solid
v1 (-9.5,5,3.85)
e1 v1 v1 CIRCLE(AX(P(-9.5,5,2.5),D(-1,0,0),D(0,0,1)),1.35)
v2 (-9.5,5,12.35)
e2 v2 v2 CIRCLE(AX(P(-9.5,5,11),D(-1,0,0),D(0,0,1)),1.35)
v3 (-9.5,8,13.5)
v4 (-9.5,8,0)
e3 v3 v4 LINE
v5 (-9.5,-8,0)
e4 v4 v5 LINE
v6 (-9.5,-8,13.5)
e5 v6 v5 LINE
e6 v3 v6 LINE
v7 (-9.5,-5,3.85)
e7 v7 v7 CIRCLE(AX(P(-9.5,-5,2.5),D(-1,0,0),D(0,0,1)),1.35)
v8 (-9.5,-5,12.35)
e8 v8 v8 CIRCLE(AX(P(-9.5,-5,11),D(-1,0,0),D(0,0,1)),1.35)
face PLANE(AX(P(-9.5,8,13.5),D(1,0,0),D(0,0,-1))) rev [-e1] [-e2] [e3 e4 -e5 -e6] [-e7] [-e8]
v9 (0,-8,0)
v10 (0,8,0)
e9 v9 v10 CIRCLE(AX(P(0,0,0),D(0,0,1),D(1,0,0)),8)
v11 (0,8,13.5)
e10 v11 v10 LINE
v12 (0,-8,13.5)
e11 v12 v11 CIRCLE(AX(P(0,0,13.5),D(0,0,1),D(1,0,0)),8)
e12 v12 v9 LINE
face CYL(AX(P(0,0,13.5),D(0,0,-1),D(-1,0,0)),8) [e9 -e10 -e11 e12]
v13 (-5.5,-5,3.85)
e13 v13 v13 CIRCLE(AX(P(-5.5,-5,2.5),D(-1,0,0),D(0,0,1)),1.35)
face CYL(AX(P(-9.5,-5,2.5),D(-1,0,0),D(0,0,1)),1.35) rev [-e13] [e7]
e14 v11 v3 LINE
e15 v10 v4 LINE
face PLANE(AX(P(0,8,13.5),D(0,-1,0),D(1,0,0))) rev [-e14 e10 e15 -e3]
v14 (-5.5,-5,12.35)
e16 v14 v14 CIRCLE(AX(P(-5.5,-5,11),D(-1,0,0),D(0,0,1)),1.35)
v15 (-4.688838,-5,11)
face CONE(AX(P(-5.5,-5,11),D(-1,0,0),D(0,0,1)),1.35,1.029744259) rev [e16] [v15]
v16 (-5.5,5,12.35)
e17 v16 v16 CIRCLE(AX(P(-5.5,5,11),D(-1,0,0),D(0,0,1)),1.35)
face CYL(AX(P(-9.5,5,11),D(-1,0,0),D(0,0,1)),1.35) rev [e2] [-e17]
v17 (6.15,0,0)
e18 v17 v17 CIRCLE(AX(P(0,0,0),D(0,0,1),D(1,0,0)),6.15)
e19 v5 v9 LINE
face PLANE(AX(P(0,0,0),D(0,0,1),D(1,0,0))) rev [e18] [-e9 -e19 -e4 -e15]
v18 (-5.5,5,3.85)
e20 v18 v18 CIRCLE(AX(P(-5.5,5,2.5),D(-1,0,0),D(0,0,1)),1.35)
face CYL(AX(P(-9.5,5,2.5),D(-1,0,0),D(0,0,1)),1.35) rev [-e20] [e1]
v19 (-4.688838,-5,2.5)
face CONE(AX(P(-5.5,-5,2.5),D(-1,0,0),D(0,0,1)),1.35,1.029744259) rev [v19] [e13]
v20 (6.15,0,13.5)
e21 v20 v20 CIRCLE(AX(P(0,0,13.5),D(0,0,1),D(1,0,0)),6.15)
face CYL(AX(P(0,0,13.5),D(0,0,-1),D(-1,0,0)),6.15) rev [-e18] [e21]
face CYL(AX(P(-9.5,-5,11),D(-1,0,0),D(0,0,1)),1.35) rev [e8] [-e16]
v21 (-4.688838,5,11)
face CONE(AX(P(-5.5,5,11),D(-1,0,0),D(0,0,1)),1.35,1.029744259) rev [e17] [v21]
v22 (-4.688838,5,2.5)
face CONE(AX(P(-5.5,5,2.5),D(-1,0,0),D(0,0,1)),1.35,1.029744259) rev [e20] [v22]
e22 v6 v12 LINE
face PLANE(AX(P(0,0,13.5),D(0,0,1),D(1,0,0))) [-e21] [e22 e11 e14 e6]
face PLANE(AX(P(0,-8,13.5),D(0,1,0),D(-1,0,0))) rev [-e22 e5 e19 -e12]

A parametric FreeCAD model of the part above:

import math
import FreeCAD as App
import Part
import Sketcher
from FreeCAD import Vector

doc = App.newDocument("Part")
body = doc.addObject("PartDesign::Body", "Body")

# Sketch on XY plane
sketch1 = body.newObject("Sketcher::SketchObject", "Sketch")
sketch1.AttachmentSupport = (doc.getObject("XY_Plane"), [""])
sketch1.MapMode = "FlatFace"
sketch1.addGeometry(Part.LineSegment(Vector(-9.5, 8, 0), Vector(-9.5, -8, 0)), False)
sketch1.addGeometry(Part.LineSegment(Vector(-9.5, -8, 0), Vector(0, -8, 0)), False)
sketch1.addGeometry(Part.ArcOfCircle(Part.Circle(Vector(0, 0, 0), Vector(0, 0, 1), 8), math.radians(-90), math.radians(90)), False)
sketch1.addGeometry(Part.LineSegment(Vector(0, 8, 0), Vector(-9.5, 8, 0)), False)
sketch1.addGeometry(Part.Circle(Vector(0, 0, 0), Vector(0, 0, 1), 6.15), False)
sketch1.addConstraint(Sketcher.Constraint("Coincident", 0, 2, 1, 1))
sketch1.addConstraint(Sketcher.Constraint("Tangent", 1, 2, 2, 1))
sketch1.addConstraint(Sketcher.Constraint("Tangent", 2, 2, 3, 1))
sketch1.addConstraint(Sketcher.Constraint("Coincident", 3, 2, 0, 1))
sketch1.addConstraint(Sketcher.Constraint("Vertical", 0))
sketch1.addConstraint(Sketcher.Constraint("Horizontal", 1))
sketch1.addConstraint(Sketcher.Constraint("Horizontal", 3))
sketch1.addConstraint(Sketcher.Constraint("Coincident", 2, 3, -1, 1))
sketch1.addConstraint(Sketcher.Constraint("Coincident", 4, 3, -1, 1))
sketch1.addConstraint(Sketcher.Constraint("Radius", 2, 8.0))
sketch1.addConstraint(Sketcher.Constraint("Diameter", 4, 12.3))
sketch1.addConstraint(Sketcher.Constraint("DistanceX", 1, 1, 1, 2, 9.5))
pad1 = body.newObject("PartDesign::Pad", "Pad")
pad1.Profile = sketch1
pad1.Length = 13.5

# Sketch on YZ plane
sketch2 = body.newObject("Sketcher::SketchObject", "Sketch001")
sketch2.AttachmentSupport = (doc.getObject("YZ_Plane"), [""])
sketch2.MapMode = "FlatFace"
sketch2.AttachmentOffset = App.Placement(Vector(0, 0, -9.5), App.Rotation())
sketch2.addGeometry(Part.Circle(Vector(-5, 2.5, 0), Vector(0, 0, 1), 1.35), False)
sketch2.addGeometry(Part.Circle(Vector(5, 2.5, 0), Vector(0, 0, 1), 1.35), False)
sketch2.addGeometry(Part.Circle(Vector(5, 11, 0), Vector(0, 0, 1), 1.35), False)
sketch2.addGeometry(Part.Circle(Vector(-5, 11, 0), Vector(0, 0, 1), 1.35), False)
sketch2.addConstraint(Sketcher.Constraint("Equal", 0, 1))
sketch2.addConstraint(Sketcher.Constraint("Equal", 1, 2))
sketch2.addConstraint(Sketcher.Constraint("Equal", 2, 3))
sketch2.addConstraint(Sketcher.Constraint("Symmetric", 0, 3, 1, 3, -2))
sketch2.addConstraint(Sketcher.Constraint("Symmetric", 2, 3, 3, 3, -2))
sketch2.addConstraint(Sketcher.Constraint("Vertical", 1, 3, 2, 3))
sketch2.addConstraint(Sketcher.Constraint("Diameter", 0, 2.7))
sketch2.addConstraint(Sketcher.Constraint("DistanceX", 0, 3, -1, 1, 5.0))
sketch2.addConstraint(Sketcher.Constraint("DistanceY", -1, 1, 2, 3, 11.0))
sketch2.addConstraint(Sketcher.Constraint("DistanceY", -1, 1, 0, 3, 2.5))
doc.recompute()
hole = body.newObject("PartDesign::Hole", "Hole")
hole.Profile = sketch2
hole.ThreadType = "None"
hole.Diameter = 2.7
hole.DepthType = "Dimension"
hole.Depth = 4
hole.DrillPoint = "Angled"
hole.DrillPointAngle = 118
hole.Reversed = True

doc.recompute()
